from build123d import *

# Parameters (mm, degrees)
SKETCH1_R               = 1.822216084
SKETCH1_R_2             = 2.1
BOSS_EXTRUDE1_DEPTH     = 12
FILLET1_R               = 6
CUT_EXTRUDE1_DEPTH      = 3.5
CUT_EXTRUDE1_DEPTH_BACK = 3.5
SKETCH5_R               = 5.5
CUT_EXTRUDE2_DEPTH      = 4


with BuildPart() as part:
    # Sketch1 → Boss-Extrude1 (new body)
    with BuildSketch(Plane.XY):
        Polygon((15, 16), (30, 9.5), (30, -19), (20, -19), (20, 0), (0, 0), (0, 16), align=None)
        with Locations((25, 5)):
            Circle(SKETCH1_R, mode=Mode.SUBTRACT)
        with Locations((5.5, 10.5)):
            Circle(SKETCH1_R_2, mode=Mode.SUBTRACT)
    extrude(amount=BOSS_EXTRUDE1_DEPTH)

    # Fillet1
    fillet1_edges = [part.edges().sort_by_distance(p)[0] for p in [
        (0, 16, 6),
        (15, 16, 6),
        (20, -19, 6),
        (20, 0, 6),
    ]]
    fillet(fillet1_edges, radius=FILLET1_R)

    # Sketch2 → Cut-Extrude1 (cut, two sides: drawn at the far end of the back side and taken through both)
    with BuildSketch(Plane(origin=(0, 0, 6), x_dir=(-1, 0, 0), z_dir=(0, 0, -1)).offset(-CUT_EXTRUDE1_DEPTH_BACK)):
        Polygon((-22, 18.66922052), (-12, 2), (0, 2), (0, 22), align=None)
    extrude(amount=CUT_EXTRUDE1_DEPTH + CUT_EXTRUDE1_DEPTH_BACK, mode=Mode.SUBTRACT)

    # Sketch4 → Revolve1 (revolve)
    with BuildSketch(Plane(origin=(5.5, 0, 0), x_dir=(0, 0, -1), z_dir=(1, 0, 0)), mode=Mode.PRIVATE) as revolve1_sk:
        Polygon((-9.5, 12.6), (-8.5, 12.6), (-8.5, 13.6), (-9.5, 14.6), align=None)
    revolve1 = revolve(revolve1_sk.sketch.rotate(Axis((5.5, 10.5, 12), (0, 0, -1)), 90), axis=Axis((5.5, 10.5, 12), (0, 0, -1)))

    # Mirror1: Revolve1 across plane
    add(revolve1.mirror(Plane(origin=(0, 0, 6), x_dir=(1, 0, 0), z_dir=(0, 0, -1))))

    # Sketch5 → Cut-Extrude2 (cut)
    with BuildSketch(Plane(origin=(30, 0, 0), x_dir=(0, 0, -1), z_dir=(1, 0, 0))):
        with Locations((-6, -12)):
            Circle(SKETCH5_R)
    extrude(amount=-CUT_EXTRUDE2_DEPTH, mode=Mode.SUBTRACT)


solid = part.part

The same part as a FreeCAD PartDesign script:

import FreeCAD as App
import Part
import Sketcher

V = App.Vector


def edges_at(feature, points):
    """Names of the edges that pass closest to the given points."""
    edges = feature.Shape.Edges
    near = lambda p: min(range(len(edges)), key=lambda i: edges[i].distToShape(Part.Vertex(*p))[0])
    return sorted({f"Edge{near(p) + 1}" for p in points})

doc = App.newDocument("Part")
body = doc.addObject("PartDesign::Body", "Body")

# Sketch on XY plane
sketch1 = body.newObject("Sketcher::SketchObject", "Sketch")
sketch1.AttachmentSupport = (doc.getObject("XY_Plane"), [""])
sketch1.MapMode = "FlatFace"
sketch1.addGeometry([
    Part.LineSegment(V(30, 9.5, 0), V(15, 16, 0)),  # 0
    Part.LineSegment(V(15, 16, 0), V(0, 16, 0)),  # 1
    Part.LineSegment(V(0, 16, 0), V(0, 0, 0)),  # 2
    Part.LineSegment(V(0, 0, 0), V(20, 0, 0)),  # 3
    Part.LineSegment(V(20, 0, 0), V(20, -19, 0)),  # 4
    Part.LineSegment(V(20, -19, 0), V(30, -19, 0)),  # 5
    Part.LineSegment(V(30, -19, 0), V(30, 9.5, 0)),  # 6
    Part.Circle(V(25, 5, 0), V(0, 0, 1), 1.8),  # 7
    Part.Circle(V(5.5, 10.5, 0), V(0, 0, 1), 2.1),  # 8
], False)
sketch1.addConstraint([
    Sketcher.Constraint("Coincident", 0, 2, 1, 1),
    Sketcher.Constraint("Coincident", 1, 2, 2, 1),
    Sketcher.Constraint("Coincident", 2, 2, 3, 1),
    Sketcher.Constraint("Coincident", 3, 2, 4, 1),
    Sketcher.Constraint("Coincident", 4, 2, 5, 1),
    Sketcher.Constraint("Coincident", 5, 2, 6, 1),
    Sketcher.Constraint("Coincident", 6, 2, 0, 1),
    Sketcher.Constraint("Horizontal", 1),
    Sketcher.Constraint("Vertical", 2),
    Sketcher.Constraint("Horizontal", 3),
    Sketcher.Constraint("Vertical", 4),
    Sketcher.Constraint("Horizontal", 5),
    Sketcher.Constraint("Vertical", 6),
    Sketcher.Constraint("Coincident", 2, 2, -1, 1),
    Sketcher.Constraint("Diameter", 8, 4.2),
    Sketcher.Constraint("DistanceX", 1, 2, 1, 1, 15.0),
    Sketcher.Constraint("DistanceX", 3, 1, 3, 2, 20.0),
    Sketcher.Constraint("DistanceX", 5, 1, 5, 2, 10.0),
    Sketcher.Constraint("DistanceY", 2, 2, 2, 1, 16.0),
    Sketcher.Constraint("DistanceY", 4, 2, 4, 1, 19.0),
    Sketcher.Constraint("DistanceY", 6, 1, 6, 2, 28.5),
    Sketcher.Constraint("DistanceX", -1, 1, 7, 3, 25.0),
    Sketcher.Constraint("DistanceY", -1, 1, 7, 3, 5.0),
    Sketcher.Constraint("DistanceY", 6, 2, 8, 3, 1.0),
    Sketcher.Constraint("DistanceX", -1, 1, 8, 3, 5.5),
    Sketcher.Constraint("Diameter", 7, 3.644432),
])
pad1 = body.newObject("PartDesign::Pad", "Pad")
pad1.Profile = sketch1
pad1.Length = 12
doc.recompute()

fillet = body.newObject("PartDesign::Fillet", "Fillet")
fillet.Base = (pad1, edges_at(pad1, [
    (0, 16, 6),
    (15, 16, 6),
    (20, -19, 6),
    (20, 0, 6),
]))
fillet.Radius = 6

# Sketch on XY plane
sketch2 = body.newObject("Sketcher::SketchObject", "Sketch001")
sketch2.AttachmentSupport = (doc.getObject("XY_Plane"), [""])
sketch2.MapMode = "FlatFace"
sketch2.AttachmentOffset = App.Placement(V(0, 0, 6), App.Rotation())
sketch2.addGeometry([
    Part.LineSegment(V(22, 19, 0), V(12, 2, 0)),
    Part.LineSegment(V(12, 2, 0), V(0, 2, 0)),
    Part.LineSegment(V(0, 2, 0), V(0, 22, 0)),
    Part.LineSegment(V(0, 22, 0), V(22, 19, 0)),
], False)
sketch2.addConstraint([
    Sketcher.Constraint("Coincident", 0, 2, 1, 1),
    Sketcher.Constraint("Coincident", 1, 2, 2, 1),
    Sketcher.Constraint("Coincident", 2, 2, 3, 1),
    Sketcher.Constraint("Coincident", 3, 2, 0, 1),
    Sketcher.Constraint("Horizontal", 1),
    Sketcher.Constraint("Vertical", 2),
    Sketcher.Constraint("PointOnObject", 1, 2, -2),
    Sketcher.Constraint("DistanceX", 1, 2, 1, 1, 12.0),
    Sketcher.Constraint("DistanceY", 2, 1, 2, 2, 20.0),
    Sketcher.Constraint("DistanceY", -1, 1, 0, 2, 2.0),
    Sketcher.Constraint("DistanceX", -1, 1, 3, 2, 22.0),
    Sketcher.Constraint("Distance", 3, 22.25071),
])
pocket1 = body.newObject("PartDesign::Pocket", "Pocket")
pocket1.Profile = sketch2
pocket1.Type = "TwoLengths"
pocket1.Length = 3.5
pocket1.Length2 = 3.5

# Sketch on YZ plane
sketch3 = body.newObject("Sketcher::SketchObject", "Sketch002")
sketch3.AttachmentSupport = (doc.getObject("YZ_Plane"), [""])
sketch3.MapMode = "FlatFace"
sketch3.AttachmentOffset = App.Placement(V(0, 0, 5.5), App.Rotation())
sketch3.addGeometry([
    Part.LineSegment(V(12.6, 9.5, 0), V(12.6, 8.5, 0)),
    Part.LineSegment(V(12.6, 8.5, 0), V(13.6, 8.5, 0)),
    Part.LineSegment(V(13.6, 8.5, 0), V(14.6, 9.5, 0)),
    Part.LineSegment(V(14.6, 9.5, 0), V(12.6, 9.5, 0)),
], False)
sketch3.addGeometry(Part.LineSegment(V(10.5, 9.5, 0), V(10.5, 8.5, 0)), True)  # axis
sketch3.addConstraint([
    Sketcher.Constraint("Coincident", 0, 2, 1, 1),
    Sketcher.Constraint("Coincident", 1, 2, 2, 1),
    Sketcher.Constraint("Coincident", 2, 2, 3, 1),
    Sketcher.Constraint("Coincident", 3, 2, 0, 1),
    Sketcher.Constraint("Vertical", 0),
    Sketcher.Constraint("Horizontal", 1),
    Sketcher.Constraint("Horizontal", 3),
    Sketcher.Constraint("Vertical", 4),
    Sketcher.Constraint("Horizontal", 3, 2, 4, 1),
    Sketcher.Constraint("Horizontal", 1, 2, 4, 2),
    Sketcher.Constraint("Equal", 1, 0),
    Sketcher.Constraint("DistanceX", 1, 1, 1, 2, 1.0),
    Sketcher.Constraint("DistanceX", 3, 2, 3, 1, 2.0),
    Sketcher.Constraint("DistanceX", -1, 1, 0, 2, 12.6),
    Sketcher.Constraint("DistanceY", -1, 1, 0, 2, 8.5),
    Sketcher.Constraint("DistanceX", -1, 1, 4, 1, 10.5),
])
revolution = body.newObject("PartDesign::Revolution", "Revolution")
revolution.Profile = sketch3
revolution.ReferenceAxis = (sketch3, ["Axis0"])
revolution.Angle = 360
doc.recompute()

datumplane = body.newObject("PartDesign::Plane", "DatumPlane")
datumplane.AttachmentSupport = (doc.getObject("XY_Plane"), [""])
datumplane.MapMode = "FlatFace"
datumplane.AttachmentOffset = App.Placement(V(0, 0, 6), App.Rotation())
mirrored = body.newObject("PartDesign::Mirrored", "Mirrored")
mirrored.Originals = [revolution]
mirrored.MirrorPlane = (datumplane, [""])
body.Tip = mirrored

# Sketch on YZ plane
sketch4 = body.newObject("Sketcher::SketchObject", "Sketch003")
sketch4.AttachmentSupport = (doc.getObject("YZ_Plane"), [""])
sketch4.MapMode = "FlatFace"
sketch4.AttachmentOffset = App.Placement(V(0, 0, 30), App.Rotation())
sketch4.addGeometry(Part.Circle(V(-12, 6, 0), V(0, 0, 1), 6), False)
sketch4.addConstraint([
    Sketcher.Constraint("Diameter", 0, 11.0),
    Sketcher.Constraint("DistanceX", 0, 3, -1, 1, 12.0),
    Sketcher.Constraint("DistanceY", -1, 1, 0, 3, 6.0),
])
pocket2 = body.newObject("PartDesign::Pocket", "Pocket001")
pocket2.Profile = sketch4
pocket2.Length = 4

doc.recompute()
